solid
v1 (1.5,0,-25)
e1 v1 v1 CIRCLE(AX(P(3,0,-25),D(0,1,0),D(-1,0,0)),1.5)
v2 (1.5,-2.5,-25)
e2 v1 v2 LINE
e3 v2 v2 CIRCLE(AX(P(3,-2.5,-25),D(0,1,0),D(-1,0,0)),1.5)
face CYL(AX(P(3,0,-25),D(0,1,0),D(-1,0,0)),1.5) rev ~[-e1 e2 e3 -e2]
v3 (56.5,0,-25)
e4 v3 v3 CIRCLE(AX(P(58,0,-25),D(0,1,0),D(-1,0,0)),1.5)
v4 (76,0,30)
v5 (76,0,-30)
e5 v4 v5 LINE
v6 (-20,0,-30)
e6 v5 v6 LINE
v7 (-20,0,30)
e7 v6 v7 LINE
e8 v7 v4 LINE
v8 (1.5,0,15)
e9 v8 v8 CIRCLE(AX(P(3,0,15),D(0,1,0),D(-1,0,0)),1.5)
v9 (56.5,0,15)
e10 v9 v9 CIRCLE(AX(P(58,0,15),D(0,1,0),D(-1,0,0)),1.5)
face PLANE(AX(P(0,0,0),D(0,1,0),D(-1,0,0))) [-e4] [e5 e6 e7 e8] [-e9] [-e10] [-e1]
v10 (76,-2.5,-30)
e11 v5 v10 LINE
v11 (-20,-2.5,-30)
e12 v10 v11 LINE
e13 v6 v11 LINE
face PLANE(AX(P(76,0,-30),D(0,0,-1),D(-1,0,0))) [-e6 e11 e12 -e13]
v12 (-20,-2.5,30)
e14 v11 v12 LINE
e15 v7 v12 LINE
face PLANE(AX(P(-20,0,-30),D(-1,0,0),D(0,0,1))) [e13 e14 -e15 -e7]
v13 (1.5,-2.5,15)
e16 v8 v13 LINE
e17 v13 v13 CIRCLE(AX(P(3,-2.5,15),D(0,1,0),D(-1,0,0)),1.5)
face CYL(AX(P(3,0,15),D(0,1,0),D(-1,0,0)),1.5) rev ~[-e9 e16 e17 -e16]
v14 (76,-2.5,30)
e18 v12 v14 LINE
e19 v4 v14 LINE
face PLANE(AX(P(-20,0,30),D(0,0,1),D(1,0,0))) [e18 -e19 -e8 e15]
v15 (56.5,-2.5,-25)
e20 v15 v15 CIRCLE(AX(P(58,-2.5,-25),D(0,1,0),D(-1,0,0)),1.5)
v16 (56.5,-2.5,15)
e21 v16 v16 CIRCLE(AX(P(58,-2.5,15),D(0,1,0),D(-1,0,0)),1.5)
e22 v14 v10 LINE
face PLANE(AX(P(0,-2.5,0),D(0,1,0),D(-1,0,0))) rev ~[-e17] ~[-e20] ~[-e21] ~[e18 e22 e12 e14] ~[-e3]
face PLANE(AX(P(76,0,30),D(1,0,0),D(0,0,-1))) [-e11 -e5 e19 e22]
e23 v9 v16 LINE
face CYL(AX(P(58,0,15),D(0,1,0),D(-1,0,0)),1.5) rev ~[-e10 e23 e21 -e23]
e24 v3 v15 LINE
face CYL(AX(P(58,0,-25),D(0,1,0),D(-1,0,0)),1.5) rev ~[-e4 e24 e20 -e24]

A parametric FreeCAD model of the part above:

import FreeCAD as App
import Part
import Sketcher
Q = App.Units.Quantity

doc = App.newDocument("Part")
body = doc.addObject("PartDesign::Body", "Body")

# Sketch on XZ plane
sketch1 = body.newObject("Sketcher::SketchObject", "Sketch")
sketch1.AttachmentSupport = (doc.getObject("XZ_Plane"), [""])
sketch1.MapMode = "FlatFace"
sketch1.addGeometry([
    Part.LineSegment(App.Vector(-20, -30, 0), App.Vector(-20, 30, 0)),  # 0
    Part.LineSegment(App.Vector(-20, 30, 0), App.Vector(76, 30, 0)),  # 1
    Part.LineSegment(App.Vector(76, 30, 0), App.Vector(76, -30, 0)),  # 2
    Part.LineSegment(App.Vector(76, -30, 0), App.Vector(-20, -30, 0)),  # 3
    Part.Circle(App.Vector(58, -25, 0), App.Vector(0, 0, 1), 1.5),  # 4
    Part.Circle(App.Vector(3, -25, 0), App.Vector(0, 0, 1), 1.5),  # 5
    Part.Circle(App.Vector(58, 15, 0), App.Vector(0, 0, 1), 1.5),  # 6
    Part.Circle(App.Vector(3, 15, 0), App.Vector(0, 0, 1), 1.5),  # 7
], False)
sketch1.addConstraint([
    Sketcher.Constraint("Coincident", 0, 2, 1, 1),
    Sketcher.Constraint("Coincident", 1, 2, 2, 1),
    Sketcher.Constraint("Coincident", 2, 2, 3, 1),
    Sketcher.Constraint("Coincident", 3, 2, 0, 1),
    Sketcher.Constraint("Vertical", 0),
    Sketcher.Constraint("Horizontal", 1),
    Sketcher.Constraint("Vertical", 2),
    Sketcher.Constraint("Horizontal", 3),
    Sketcher.Constraint("Equal", 4, 5),
    Sketcher.Constraint("Equal", 5, 6),
    Sketcher.Constraint("Equal", 6, 7),
    Sketcher.Constraint("Horizontal", 4, 3, 5, 3),
    Sketcher.Constraint("Horizontal", 6, 3, 7, 3),
    Sketcher.Constraint("Vertical", 4, 3, 6, 3),
    Sketcher.Constraint("Vertical", 5, 3, 7, 3),
    Sketcher.Constraint("Diameter", 4, Q("3 mm")),
    Sketcher.Constraint("DistanceX", 1, 1, 1, 2, Q("96 mm")),
    Sketcher.Constraint("DistanceY", 0, 1, 0, 2, Q("60 mm")),
    Sketcher.Constraint("DistanceX", -1, 1, 5, 3, Q("3 mm")),
    Sketcher.Constraint("DistanceY", -1, 1, 6, 3, Q("15 mm")),
    Sketcher.Constraint("DistanceX", 0, 2, -1, 1, Q("20 mm")),
    Sketcher.Constraint("DistanceX", 5, 3, 4, 3, Q("55 mm")),
    Sketcher.Constraint("DistanceY", 7, 3, 0, 2, Q("15 mm")),
    Sketcher.Constraint("DistanceY", 5, 3, 0, 2, Q("55 mm")),
])
pad1 = body.newObject("PartDesign::Pad", "Pad")
pad1.Profile = sketch1
pad1.Length = 2.5

doc.recompute()
